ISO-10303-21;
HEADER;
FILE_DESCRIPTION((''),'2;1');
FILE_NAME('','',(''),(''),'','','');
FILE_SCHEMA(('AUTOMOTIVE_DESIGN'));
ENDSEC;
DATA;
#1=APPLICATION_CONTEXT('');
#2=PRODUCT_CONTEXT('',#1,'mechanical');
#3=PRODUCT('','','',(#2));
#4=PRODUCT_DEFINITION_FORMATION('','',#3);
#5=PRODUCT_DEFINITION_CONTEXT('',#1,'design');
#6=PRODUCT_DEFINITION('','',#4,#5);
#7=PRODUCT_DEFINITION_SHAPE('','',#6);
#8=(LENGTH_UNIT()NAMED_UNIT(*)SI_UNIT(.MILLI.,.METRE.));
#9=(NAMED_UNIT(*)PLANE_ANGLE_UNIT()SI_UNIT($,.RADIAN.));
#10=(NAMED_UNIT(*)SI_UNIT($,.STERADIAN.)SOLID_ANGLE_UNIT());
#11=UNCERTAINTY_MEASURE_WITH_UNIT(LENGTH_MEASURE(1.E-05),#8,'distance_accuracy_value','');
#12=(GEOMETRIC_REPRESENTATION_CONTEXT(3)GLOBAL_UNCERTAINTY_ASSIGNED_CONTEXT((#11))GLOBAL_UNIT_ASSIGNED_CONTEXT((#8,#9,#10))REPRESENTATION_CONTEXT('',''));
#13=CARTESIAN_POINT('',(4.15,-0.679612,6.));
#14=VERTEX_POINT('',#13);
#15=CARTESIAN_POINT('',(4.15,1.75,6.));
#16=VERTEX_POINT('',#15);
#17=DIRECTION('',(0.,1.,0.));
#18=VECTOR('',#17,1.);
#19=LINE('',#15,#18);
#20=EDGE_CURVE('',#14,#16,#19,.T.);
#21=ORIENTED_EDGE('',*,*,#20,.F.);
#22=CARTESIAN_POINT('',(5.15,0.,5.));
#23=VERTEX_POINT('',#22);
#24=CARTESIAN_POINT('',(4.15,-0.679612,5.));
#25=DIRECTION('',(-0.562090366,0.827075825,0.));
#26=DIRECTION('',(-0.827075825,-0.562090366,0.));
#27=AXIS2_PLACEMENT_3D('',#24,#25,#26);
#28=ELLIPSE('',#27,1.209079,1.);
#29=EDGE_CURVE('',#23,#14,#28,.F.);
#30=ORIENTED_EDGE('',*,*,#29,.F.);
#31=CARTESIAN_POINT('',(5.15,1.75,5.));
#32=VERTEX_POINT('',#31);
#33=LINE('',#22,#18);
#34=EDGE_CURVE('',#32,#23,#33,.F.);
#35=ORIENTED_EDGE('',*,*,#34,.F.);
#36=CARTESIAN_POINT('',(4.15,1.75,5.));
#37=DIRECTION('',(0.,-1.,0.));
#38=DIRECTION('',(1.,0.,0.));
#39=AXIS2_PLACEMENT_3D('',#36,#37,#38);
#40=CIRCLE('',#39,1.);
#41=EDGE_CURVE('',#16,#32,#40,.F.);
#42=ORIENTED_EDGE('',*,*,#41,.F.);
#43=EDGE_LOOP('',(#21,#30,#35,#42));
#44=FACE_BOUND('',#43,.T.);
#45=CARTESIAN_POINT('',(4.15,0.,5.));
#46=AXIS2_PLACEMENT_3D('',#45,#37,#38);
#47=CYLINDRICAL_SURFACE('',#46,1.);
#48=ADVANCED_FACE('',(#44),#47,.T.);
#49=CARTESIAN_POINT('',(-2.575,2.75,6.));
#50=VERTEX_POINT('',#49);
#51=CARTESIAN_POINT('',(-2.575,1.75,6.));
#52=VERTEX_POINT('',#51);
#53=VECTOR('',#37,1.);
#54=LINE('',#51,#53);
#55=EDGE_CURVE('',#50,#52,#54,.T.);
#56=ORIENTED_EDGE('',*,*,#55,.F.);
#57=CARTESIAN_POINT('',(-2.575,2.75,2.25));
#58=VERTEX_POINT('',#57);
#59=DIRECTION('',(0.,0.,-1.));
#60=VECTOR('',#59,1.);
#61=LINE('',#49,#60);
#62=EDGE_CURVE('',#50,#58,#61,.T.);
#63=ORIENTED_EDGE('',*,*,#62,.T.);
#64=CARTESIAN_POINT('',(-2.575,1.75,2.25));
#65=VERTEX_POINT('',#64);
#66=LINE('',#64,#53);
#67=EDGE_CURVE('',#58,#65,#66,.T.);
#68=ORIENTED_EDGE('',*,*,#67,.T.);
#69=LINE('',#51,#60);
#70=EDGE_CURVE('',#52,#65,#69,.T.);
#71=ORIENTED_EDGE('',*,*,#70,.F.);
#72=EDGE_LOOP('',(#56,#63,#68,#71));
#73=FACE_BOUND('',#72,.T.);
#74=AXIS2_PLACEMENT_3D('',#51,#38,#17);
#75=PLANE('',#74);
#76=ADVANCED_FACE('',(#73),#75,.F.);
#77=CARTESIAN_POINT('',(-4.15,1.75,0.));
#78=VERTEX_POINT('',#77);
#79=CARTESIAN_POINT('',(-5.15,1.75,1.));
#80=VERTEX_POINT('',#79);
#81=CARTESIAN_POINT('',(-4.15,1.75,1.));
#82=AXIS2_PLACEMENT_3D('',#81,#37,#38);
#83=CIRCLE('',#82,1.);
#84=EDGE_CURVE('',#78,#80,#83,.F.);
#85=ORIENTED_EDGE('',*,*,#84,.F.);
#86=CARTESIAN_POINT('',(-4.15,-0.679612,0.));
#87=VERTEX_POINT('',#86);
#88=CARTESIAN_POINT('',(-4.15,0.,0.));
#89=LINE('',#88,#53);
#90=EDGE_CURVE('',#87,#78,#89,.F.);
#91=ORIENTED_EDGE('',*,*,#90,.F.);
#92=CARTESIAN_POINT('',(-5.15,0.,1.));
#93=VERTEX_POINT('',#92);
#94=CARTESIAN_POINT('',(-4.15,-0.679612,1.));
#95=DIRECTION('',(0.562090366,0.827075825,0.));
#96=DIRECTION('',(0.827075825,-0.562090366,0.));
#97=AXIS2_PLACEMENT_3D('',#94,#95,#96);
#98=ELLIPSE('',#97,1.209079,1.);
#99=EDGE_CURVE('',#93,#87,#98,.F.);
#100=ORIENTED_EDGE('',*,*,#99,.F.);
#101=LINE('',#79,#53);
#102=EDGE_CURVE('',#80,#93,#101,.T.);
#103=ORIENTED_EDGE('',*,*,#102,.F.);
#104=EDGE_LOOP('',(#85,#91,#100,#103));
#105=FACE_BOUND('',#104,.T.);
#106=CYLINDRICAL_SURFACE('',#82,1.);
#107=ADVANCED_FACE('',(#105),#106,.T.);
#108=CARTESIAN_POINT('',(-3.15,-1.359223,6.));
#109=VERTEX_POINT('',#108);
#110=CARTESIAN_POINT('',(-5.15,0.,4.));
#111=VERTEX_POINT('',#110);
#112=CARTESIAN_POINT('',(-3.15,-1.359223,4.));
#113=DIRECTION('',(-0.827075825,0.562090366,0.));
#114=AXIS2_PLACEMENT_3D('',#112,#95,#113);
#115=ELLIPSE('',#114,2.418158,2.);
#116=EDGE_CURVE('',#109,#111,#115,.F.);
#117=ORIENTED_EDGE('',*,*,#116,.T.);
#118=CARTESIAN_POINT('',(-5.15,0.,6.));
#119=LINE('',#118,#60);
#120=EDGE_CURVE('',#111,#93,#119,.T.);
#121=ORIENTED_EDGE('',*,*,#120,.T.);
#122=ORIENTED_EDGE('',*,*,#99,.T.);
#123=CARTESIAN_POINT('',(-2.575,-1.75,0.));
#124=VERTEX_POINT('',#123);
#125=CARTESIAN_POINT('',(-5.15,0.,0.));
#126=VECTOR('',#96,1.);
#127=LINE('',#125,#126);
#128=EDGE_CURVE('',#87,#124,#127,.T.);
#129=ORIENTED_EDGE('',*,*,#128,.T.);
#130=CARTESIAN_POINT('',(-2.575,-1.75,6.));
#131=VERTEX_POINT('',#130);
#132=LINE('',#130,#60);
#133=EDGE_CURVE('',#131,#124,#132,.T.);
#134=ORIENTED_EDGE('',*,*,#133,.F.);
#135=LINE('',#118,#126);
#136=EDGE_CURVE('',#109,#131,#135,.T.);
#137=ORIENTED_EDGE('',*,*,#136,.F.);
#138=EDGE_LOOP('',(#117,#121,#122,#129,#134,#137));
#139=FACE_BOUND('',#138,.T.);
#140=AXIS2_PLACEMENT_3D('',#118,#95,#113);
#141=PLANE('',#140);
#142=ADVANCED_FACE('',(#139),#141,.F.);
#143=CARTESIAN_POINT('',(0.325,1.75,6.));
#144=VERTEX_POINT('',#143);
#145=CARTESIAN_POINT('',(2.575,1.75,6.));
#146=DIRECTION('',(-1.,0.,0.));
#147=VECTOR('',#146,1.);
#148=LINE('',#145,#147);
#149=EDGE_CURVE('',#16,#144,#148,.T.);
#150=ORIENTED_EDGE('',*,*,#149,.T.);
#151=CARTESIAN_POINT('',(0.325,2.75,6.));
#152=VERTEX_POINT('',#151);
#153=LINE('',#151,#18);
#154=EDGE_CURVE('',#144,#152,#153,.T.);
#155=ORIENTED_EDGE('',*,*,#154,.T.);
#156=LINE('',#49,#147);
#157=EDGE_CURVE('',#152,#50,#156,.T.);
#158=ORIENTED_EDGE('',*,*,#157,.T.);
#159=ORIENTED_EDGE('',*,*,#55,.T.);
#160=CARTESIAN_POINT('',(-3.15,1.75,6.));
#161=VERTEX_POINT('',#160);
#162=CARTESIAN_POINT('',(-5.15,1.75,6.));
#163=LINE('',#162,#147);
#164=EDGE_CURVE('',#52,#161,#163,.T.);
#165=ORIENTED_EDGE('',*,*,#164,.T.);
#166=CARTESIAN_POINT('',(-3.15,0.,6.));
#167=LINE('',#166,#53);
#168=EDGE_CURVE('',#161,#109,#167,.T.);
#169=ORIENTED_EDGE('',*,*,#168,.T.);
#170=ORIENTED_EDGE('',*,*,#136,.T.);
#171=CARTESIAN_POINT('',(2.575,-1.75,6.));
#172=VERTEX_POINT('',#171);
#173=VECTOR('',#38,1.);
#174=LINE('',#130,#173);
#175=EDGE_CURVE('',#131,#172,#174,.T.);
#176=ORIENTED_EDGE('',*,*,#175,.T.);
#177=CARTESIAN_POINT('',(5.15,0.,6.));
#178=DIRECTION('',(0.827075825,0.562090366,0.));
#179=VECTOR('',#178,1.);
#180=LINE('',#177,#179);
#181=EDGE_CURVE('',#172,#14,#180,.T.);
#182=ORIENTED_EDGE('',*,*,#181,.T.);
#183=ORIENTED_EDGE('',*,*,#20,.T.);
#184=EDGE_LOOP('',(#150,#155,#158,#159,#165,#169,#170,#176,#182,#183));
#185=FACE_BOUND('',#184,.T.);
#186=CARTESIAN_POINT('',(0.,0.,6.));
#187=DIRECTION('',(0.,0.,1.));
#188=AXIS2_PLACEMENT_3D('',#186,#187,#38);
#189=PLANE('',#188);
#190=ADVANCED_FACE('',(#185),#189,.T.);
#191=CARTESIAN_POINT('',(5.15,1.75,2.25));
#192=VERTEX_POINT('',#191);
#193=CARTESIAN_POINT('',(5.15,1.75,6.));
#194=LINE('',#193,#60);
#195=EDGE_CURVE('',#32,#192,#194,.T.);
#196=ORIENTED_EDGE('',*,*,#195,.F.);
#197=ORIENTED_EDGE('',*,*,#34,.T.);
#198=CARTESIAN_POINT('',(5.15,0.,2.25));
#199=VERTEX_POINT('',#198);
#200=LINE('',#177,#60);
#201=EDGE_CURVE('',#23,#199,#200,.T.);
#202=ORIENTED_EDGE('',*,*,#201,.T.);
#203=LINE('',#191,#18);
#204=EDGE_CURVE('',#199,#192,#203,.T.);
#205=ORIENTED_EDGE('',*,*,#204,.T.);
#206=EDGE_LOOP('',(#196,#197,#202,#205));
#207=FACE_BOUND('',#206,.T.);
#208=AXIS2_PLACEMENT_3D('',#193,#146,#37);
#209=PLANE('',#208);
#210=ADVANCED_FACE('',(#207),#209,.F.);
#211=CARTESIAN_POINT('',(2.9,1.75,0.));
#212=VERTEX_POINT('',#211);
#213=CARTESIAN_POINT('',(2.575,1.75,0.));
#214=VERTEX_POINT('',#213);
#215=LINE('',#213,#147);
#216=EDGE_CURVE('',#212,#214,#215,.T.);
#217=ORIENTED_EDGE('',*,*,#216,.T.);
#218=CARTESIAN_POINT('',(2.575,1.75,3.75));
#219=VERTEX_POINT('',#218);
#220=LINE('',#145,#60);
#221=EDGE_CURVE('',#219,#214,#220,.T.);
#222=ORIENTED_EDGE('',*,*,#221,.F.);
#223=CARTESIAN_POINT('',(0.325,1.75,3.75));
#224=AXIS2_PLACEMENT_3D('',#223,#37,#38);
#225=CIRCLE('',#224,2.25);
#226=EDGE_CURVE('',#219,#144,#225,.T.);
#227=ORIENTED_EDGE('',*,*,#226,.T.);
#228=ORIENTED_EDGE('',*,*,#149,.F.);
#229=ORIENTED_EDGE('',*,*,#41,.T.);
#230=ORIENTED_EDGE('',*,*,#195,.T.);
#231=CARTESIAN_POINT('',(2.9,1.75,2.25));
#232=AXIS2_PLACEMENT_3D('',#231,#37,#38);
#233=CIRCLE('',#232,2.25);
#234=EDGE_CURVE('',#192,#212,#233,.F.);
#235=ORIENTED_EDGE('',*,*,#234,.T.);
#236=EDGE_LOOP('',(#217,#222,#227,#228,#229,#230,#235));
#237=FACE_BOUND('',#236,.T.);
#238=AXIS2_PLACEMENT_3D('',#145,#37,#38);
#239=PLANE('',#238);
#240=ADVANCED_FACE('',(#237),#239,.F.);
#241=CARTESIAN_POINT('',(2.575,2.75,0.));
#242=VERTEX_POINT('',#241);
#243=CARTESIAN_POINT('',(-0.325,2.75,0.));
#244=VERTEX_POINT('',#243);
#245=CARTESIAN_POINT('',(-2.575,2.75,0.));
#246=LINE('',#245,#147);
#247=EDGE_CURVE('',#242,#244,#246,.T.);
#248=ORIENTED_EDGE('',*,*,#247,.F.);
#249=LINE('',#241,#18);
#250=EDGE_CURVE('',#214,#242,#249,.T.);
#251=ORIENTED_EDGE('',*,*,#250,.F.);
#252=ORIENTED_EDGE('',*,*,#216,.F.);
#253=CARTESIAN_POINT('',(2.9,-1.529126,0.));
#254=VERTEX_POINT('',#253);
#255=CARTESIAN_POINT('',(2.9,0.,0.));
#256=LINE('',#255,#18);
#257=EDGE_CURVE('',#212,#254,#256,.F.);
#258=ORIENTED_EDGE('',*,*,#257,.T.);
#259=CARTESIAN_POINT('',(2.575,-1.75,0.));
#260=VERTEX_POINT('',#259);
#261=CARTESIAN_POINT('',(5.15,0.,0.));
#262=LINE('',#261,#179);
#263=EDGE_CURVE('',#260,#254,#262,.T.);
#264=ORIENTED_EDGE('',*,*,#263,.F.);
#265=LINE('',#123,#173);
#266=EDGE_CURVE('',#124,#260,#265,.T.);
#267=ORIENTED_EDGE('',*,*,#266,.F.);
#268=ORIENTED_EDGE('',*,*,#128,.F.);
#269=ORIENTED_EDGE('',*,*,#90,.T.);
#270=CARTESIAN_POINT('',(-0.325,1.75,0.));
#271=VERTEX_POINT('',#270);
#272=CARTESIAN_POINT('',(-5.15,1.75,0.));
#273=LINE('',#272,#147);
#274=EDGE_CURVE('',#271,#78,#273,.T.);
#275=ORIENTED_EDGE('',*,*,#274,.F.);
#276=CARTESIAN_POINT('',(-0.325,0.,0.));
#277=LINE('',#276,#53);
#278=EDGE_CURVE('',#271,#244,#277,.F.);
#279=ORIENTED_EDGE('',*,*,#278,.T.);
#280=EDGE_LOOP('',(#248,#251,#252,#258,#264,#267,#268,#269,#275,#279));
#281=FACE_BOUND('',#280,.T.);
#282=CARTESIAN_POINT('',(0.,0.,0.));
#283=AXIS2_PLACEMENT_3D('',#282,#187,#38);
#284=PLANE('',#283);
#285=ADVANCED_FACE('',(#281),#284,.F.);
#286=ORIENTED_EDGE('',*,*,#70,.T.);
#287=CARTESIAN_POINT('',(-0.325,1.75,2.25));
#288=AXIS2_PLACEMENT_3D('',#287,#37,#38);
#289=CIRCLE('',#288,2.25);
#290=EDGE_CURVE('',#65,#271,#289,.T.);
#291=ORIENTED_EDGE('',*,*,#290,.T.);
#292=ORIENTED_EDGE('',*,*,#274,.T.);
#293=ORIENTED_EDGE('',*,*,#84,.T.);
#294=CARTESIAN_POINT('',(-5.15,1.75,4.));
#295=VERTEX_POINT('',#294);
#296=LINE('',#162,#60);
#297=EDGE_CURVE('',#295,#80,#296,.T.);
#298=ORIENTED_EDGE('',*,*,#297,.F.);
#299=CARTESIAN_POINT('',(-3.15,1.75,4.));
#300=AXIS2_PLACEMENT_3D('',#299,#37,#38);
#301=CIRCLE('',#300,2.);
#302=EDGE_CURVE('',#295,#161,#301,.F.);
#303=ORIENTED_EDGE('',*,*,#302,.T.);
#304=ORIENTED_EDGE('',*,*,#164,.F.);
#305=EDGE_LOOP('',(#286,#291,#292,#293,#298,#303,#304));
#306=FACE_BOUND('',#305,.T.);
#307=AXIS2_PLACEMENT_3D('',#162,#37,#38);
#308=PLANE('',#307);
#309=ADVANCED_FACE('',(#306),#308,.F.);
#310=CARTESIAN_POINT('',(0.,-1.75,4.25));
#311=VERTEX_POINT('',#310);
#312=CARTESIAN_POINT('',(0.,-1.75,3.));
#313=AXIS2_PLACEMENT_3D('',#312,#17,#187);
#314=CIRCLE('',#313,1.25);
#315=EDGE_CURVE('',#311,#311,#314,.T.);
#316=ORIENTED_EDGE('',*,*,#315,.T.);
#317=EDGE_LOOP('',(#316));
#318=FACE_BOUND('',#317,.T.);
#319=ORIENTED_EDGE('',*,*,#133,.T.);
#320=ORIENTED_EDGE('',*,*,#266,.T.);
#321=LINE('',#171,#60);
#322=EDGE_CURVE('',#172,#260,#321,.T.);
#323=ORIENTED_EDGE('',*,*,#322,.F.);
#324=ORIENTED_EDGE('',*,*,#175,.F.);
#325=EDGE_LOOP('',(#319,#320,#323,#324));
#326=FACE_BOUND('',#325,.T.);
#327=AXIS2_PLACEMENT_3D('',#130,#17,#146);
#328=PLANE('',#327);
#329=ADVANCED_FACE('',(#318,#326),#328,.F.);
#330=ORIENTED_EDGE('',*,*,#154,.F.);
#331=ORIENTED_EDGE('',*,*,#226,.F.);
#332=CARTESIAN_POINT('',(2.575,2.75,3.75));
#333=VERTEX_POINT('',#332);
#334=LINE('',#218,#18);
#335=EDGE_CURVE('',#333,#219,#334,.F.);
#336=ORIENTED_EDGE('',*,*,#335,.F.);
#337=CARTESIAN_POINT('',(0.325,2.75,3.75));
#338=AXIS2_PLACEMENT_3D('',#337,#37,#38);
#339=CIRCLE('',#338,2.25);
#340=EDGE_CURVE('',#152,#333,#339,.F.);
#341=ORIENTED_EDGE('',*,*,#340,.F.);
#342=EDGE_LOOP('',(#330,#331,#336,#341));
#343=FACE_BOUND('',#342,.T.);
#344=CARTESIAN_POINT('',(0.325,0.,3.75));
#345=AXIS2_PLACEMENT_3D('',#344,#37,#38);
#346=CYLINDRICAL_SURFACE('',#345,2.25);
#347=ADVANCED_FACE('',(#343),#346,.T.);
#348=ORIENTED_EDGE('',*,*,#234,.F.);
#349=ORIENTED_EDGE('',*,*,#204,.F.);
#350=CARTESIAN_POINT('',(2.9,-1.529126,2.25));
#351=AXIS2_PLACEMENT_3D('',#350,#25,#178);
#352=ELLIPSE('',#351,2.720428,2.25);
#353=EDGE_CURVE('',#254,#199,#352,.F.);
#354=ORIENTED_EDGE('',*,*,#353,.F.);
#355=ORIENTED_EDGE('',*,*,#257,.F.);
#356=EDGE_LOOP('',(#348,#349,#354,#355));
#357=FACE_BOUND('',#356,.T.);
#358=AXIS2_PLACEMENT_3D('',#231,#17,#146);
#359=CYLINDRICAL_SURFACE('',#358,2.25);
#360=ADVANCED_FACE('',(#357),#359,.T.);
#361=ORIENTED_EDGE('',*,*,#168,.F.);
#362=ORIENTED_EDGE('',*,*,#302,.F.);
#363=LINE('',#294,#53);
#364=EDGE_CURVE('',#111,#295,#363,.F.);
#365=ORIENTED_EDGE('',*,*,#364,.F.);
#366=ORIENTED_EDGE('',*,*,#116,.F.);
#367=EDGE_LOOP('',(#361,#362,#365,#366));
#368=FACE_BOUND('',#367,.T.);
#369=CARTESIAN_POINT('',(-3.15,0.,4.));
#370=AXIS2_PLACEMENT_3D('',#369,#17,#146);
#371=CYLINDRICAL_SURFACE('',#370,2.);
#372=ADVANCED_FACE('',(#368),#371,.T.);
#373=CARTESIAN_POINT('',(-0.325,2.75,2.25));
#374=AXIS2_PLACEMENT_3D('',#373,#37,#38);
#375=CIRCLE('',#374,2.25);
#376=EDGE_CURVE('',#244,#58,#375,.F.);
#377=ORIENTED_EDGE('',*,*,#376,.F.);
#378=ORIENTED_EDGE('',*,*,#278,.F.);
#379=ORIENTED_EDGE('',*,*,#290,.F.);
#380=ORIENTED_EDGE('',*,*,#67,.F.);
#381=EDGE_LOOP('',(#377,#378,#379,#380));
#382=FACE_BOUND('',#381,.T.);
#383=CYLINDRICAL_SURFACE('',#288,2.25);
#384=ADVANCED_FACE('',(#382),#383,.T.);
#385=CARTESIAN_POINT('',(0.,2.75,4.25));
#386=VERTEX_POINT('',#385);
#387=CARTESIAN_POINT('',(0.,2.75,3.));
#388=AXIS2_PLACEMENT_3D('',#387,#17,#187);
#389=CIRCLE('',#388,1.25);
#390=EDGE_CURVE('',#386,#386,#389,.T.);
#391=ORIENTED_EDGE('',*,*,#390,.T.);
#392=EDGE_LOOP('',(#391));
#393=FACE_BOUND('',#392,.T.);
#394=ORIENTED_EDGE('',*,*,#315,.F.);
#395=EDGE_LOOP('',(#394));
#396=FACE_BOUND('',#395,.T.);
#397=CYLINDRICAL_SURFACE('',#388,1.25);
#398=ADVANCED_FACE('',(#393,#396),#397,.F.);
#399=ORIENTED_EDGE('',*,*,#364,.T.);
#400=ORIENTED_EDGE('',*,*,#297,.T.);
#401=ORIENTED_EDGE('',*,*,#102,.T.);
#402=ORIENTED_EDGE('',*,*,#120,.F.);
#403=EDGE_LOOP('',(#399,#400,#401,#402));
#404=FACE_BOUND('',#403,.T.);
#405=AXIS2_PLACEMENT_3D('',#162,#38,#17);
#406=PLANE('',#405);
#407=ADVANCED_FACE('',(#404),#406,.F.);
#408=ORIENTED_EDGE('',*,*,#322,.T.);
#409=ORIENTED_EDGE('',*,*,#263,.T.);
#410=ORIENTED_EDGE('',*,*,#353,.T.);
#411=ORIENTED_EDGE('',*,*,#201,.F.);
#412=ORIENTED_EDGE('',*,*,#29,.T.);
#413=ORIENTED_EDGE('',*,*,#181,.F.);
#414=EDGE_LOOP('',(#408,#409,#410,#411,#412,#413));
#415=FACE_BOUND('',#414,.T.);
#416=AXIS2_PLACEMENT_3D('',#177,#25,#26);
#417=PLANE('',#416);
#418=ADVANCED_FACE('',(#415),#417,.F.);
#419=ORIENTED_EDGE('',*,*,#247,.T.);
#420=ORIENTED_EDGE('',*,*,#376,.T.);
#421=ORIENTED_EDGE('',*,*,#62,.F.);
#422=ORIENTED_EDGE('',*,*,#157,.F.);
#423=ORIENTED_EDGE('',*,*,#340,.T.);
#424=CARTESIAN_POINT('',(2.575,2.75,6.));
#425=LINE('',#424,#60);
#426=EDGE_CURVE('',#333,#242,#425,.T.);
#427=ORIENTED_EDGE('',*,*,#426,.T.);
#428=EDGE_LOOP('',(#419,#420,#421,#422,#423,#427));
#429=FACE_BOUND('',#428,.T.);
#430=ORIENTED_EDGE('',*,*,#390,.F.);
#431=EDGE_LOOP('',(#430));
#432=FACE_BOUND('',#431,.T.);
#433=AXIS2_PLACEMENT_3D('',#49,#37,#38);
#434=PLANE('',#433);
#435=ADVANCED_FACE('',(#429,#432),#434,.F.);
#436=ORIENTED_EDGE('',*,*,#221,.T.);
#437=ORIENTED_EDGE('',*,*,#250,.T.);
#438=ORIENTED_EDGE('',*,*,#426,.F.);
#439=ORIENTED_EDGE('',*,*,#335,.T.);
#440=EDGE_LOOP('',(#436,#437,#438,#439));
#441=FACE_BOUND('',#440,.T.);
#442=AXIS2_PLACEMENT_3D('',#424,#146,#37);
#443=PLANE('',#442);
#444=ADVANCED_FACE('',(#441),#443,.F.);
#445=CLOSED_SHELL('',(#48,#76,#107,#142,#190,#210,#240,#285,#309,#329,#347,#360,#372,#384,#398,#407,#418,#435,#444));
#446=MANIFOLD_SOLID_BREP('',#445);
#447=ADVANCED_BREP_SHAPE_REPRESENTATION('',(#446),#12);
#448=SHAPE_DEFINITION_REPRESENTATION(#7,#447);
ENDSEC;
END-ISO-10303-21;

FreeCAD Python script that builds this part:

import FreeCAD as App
import Part
import Sketcher

V = App.Vector
Q = App.Units.Quantity


def edges_at(feature, points):
    """Names of the edges that pass closest to the given points."""
    edges = feature.Shape.Edges
    near = lambda p: min(range(len(edges)), key=lambda i: edges[i].distToShape(Part.Vertex(*p))[0])
    return sorted({f"Edge{near(p) + 1}" for p in points})

doc = App.newDocument("Part")
body = doc.addObject("PartDesign::Body", "Body")

sketch1 = doc.addObject("Sketcher::SketchObject", "Sketch")
body.addObject(sketch1)
sketch1.AttachmentSupport = (doc.XY_Plane, [""])
sketch1.MapMode = "FlatFace"
sketch1.addGeometry([
    Part.LineSegment(V(-2.575, 1.75, 0), V(-5.15, 1.75, 0)),
    Part.LineSegment(V(-5.15, 1.75, 0), V(-5.15, 0, 0)),
    Part.LineSegment(V(-5.15, 0, 0), V(-2.575, -1.75, 0)),
    Part.LineSegment(V(-2.575, -1.75, 0), V(2.575, -1.75, 0)),
    Part.LineSegment(V(2.575, -1.75, 0), V(5.15, 0, 0)),
    Part.LineSegment(V(5.15, 0, 0), V(5.15, 1.75, 0)),
    Part.LineSegment(V(5.15, 1.75, 0), V(2.575, 1.75, 0)),
    Part.LineSegment(V(2.575, 1.75, 0), V(2.575, 2.75, 0)),
    Part.LineSegment(V(2.575, 2.75, 0), V(-2.575, 2.75, 0)),
    Part.LineSegment(V(-2.575, 2.75, 0), V(-2.575, 1.75, 0)),
], False)
sketch1.addConstraint([
    Sketcher.Constraint("Coincident", 0, 2, 1, 1),
    Sketcher.Constraint("Coincident", 1, 2, 2, 1),
    Sketcher.Constraint("Coincident", 2, 2, 3, 1),
    Sketcher.Constraint("Coincident", 3, 2, 4, 1),
    Sketcher.Constraint("Coincident", 4, 2, 5, 1),
    Sketcher.Constraint("Coincident", 5, 2, 6, 1),
    Sketcher.Constraint("Coincident", 6, 2, 7, 1),
    Sketcher.Constraint("Coincident", 7, 2, 8, 1),
    Sketcher.Constraint("Coincident", 8, 2, 9, 1),
    Sketcher.Constraint("Coincident", 9, 2, 0, 1),
    Sketcher.Constraint("Horizontal", 0),
    Sketcher.Constraint("Vertical", 1),
    Sketcher.Constraint("Horizontal", 3),
    Sketcher.Constraint("Vertical", 5),
    Sketcher.Constraint("Horizontal", 6),
    Sketcher.Constraint("Vertical", 7),
    Sketcher.Constraint("Horizontal", 8),
    Sketcher.Constraint("Vertical", 9),
    Sketcher.Constraint("Symmetric", 1, 2, 4, 2, -1, 1),
    Sketcher.Constraint("Symmetric", 2, 2, 6, 2, -1, 1),
    Sketcher.Constraint("Symmetric", 3, 2, 9, 2, -1, 1),
    Sketcher.Constraint("PointOnObject", 1, 2, -1),
    Sketcher.Constraint("Vertical", 3, 2, 6, 2),
    Sketcher.Constraint("DistanceY", 7, 1, 7, 2, Q("1 mm")),
    Sketcher.Constraint("DistanceX", 3, 1, 3, 2, Q("5.15 mm")),
    Sketcher.Constraint("DistanceY", 1, 2, 1, 1, Q("1.75 mm")),
    Sketcher.Constraint("DistanceX", 1, 2, 4, 2, Q("10.3 mm")),
])
pad1 = doc.addObject("PartDesign::Pad", "Pad")
body.addObject(pad1)
pad1.Profile = sketch1
pad1.Length = 6

sketch2 = doc.addObject("Sketcher::SketchObject", "Sketch001")
body.addObject(sketch2)
sketch2.AttachmentSupport = (doc.XZ_Plane, [""])
sketch2.MapMode = "FlatFace"
sketch2.AttachmentOffset = App.Placement(V(0, 0, -2.75), App.Rotation())
sketch2.addGeometry(Part.Circle(V(0, 3, 0), V(0, 0, 1), 1.25), False)
sketch2.addConstraint([
    Sketcher.Constraint("PointOnObject", 0, 3, -2),
    Sketcher.Constraint("Diameter", 0, Q("2.5 mm")),
    Sketcher.Constraint("DistanceY", -1, 1, 0, 3, Q("3 mm")),
])
doc.recompute()
hole = doc.addObject("PartDesign::Hole", "Hole")
body.addObject(hole)
hole.Profile = sketch2
hole.ThreadType = "None"
hole.Diameter = 2.5
hole.DepthType = "ThroughAll"
hole.Reversed = True
doc.recompute()

fillet = doc.addObject("PartDesign::Fillet", "Fillet")
body.addObject(fillet)
fillet.Base = (hole, edges_at(hole, [(-5.15, 0.875, 0)]))
fillet.Radius = 1
doc.recompute()

fillet2 = doc.addObject("PartDesign::Fillet", "Fillet001")
body.addObject(fillet2)
fillet2.Base = (fillet, edges_at(fillet, [(-5.15, 0.875, 6)]))
fillet2.Radius = 2
doc.recompute()

fillet3 = doc.addObject("PartDesign::Fillet", "Fillet002")
body.addObject(fillet3)
fillet3.Base = (fillet2, edges_at(fillet2, [(5.15, 0.875, 6)]))
fillet3.Radius = 1
doc.recompute()

fillet4 = doc.addObject("PartDesign::Fillet", "Fillet003")
body.addObject(fillet4)
fillet4.Base = (fillet3, edges_at(fillet3, [(5.15, 0.875, 0)]))
fillet4.Radius = 2.25
doc.recompute()

fillet5 = doc.addObject("PartDesign::Fillet", "Fillet004")
body.addObject(fillet5)
fillet5.Base = (fillet4, edges_at(fillet4, [(-2.575, 2.25, 0), (2.575, 2.25, 6)]))
fillet5.Radius = 2.25

doc.recompute()
